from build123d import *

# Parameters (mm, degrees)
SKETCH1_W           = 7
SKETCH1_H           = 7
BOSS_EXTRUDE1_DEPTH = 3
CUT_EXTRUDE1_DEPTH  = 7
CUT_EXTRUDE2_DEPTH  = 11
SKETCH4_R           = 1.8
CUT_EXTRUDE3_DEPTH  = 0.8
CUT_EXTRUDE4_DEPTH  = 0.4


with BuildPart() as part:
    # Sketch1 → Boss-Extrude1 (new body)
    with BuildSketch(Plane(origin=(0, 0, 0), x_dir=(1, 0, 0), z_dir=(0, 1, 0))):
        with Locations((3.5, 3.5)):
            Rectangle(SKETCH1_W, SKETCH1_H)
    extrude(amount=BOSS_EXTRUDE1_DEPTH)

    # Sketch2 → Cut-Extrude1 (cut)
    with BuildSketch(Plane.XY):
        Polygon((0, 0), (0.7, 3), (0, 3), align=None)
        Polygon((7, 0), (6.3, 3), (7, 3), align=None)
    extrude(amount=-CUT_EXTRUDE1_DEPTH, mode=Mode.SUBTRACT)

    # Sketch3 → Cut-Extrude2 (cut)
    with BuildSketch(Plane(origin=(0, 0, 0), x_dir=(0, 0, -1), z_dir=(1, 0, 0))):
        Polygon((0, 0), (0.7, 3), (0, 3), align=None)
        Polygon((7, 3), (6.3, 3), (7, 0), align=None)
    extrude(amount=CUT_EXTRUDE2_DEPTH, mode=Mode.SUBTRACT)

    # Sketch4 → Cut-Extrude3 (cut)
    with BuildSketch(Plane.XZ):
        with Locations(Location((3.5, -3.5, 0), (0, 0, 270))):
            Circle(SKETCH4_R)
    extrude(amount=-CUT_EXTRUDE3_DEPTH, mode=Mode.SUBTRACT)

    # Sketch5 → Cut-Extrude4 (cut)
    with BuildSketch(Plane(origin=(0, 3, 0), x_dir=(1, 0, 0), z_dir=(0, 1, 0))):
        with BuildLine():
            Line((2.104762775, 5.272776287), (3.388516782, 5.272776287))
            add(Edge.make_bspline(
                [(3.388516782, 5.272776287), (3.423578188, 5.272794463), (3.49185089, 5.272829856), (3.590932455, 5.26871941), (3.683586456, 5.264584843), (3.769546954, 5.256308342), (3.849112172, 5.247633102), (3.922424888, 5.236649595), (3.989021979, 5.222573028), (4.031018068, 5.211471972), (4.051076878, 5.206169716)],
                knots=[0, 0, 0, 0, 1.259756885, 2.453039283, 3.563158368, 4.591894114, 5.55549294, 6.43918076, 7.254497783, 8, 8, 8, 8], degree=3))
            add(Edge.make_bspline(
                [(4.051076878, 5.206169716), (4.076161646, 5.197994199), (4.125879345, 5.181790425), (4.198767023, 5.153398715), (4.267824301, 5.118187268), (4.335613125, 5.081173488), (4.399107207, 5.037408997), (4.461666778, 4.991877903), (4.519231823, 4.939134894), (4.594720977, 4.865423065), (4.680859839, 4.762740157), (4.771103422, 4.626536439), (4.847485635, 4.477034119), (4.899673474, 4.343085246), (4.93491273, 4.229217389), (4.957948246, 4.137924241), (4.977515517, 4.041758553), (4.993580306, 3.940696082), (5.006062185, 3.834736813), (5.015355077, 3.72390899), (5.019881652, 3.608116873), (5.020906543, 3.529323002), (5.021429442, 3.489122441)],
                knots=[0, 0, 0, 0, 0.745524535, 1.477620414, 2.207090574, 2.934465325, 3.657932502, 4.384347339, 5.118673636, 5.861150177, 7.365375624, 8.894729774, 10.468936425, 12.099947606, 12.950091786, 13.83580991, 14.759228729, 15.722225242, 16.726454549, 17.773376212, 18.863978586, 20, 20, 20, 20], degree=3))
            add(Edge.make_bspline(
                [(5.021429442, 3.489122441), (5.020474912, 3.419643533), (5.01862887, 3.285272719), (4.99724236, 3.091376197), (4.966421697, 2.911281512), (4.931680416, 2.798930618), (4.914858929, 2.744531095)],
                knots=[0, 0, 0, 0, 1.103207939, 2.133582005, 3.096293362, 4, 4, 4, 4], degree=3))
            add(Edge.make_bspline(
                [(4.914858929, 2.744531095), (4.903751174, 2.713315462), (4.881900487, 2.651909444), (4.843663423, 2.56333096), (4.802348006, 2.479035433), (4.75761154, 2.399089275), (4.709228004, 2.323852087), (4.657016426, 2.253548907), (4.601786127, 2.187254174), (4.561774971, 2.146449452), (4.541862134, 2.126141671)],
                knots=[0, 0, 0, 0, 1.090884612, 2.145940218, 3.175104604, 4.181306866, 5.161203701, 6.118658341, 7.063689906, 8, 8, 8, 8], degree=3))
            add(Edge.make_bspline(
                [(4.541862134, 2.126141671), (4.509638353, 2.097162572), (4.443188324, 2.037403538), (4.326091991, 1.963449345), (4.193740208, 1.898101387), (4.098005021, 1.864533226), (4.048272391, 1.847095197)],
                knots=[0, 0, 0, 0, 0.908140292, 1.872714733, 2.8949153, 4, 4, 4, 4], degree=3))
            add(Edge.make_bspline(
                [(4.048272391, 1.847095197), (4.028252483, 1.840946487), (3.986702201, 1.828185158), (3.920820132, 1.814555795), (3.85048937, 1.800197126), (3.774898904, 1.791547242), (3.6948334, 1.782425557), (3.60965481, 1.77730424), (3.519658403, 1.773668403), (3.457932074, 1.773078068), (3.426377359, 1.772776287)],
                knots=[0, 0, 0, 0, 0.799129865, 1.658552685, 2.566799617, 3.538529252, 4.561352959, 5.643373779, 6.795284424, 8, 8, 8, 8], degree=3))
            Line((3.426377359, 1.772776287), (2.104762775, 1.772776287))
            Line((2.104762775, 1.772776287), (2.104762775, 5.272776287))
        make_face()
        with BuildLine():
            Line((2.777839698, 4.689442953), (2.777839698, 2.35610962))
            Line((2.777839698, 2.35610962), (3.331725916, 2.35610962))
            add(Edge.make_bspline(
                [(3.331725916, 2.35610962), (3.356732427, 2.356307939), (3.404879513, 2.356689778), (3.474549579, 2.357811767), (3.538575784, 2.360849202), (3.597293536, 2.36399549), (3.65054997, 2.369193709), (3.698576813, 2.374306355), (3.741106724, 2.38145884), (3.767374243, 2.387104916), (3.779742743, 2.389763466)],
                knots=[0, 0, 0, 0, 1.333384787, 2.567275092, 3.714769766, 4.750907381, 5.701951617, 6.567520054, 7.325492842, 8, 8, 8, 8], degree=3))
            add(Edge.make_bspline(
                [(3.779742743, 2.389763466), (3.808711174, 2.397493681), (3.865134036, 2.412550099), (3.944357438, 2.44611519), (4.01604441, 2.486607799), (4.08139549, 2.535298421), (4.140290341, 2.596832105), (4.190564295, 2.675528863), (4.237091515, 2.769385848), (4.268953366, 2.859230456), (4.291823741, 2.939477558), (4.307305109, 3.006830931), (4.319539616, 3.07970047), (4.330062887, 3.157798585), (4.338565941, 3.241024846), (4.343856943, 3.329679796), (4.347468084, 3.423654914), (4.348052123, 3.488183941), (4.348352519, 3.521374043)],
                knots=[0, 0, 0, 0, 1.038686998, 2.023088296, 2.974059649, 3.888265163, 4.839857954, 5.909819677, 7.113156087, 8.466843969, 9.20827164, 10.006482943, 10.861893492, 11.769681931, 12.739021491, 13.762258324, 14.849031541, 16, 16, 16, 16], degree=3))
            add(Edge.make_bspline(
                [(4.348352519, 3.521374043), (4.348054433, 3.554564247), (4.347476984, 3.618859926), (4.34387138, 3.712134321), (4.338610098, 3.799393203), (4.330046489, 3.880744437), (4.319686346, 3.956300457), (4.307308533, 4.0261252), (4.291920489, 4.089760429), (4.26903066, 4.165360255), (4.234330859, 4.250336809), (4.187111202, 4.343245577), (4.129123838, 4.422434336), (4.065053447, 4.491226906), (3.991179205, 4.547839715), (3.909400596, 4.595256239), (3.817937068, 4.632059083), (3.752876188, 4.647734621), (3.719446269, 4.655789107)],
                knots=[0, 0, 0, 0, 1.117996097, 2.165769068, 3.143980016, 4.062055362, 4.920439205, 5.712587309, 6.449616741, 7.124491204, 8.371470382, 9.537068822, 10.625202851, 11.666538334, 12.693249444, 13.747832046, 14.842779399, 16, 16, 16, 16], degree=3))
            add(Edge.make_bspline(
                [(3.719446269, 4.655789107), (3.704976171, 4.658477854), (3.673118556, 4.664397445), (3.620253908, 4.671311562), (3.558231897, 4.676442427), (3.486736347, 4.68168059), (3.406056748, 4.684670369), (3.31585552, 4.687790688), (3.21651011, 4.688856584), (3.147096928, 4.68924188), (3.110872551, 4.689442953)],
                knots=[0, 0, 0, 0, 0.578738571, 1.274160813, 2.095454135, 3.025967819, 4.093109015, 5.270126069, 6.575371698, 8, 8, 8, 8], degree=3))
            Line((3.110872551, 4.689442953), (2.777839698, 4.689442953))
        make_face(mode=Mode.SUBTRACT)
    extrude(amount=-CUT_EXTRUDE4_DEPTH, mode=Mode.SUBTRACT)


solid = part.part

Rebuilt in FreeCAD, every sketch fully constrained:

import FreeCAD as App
import Part
import Sketcher

doc = App.newDocument("Part")
body = doc.addObject("PartDesign::Body", "Body")

# Sketch on XZ plane
sketch1 = doc.addObject("Sketcher::SketchObject", "Sketch")
body.addObject(sketch1)
sketch1.AttachmentSupport = (doc.XZ_Plane, [""])
sketch1.MapMode = "FlatFace"
sketch1.addGeometry([
    Part.LineSegment(App.Vector(0, -7, 0), App.Vector(0, 0, 0)),
    Part.LineSegment(App.Vector(0, 0, 0), App.Vector(7, 0, 0)),
    Part.LineSegment(App.Vector(7, 0, 0), App.Vector(7, -7, 0)),
    Part.LineSegment(App.Vector(7, -7, 0), App.Vector(0, -7, 0)),
], False)
sketch1.addConstraint([
    Sketcher.Constraint("Coincident", 0, 2, 1, 1),
    Sketcher.Constraint("Coincident", 1, 2, 2, 1),
    Sketcher.Constraint("Coincident", 2, 2, 3, 1),
    Sketcher.Constraint("Coincident", 3, 2, 0, 1),
    Sketcher.Constraint("Vertical", 0),
    Sketcher.Constraint("Horizontal", 1),
    Sketcher.Constraint("Vertical", 2),
    Sketcher.Constraint("Horizontal", 3),
    Sketcher.Constraint("Coincident", 0, 2, -1, 1),
    Sketcher.Constraint("Equal", 3, 0),
    Sketcher.Constraint("DistanceX", 1, 1, 1, 2, 7.0),
])
pad1 = doc.addObject("PartDesign::Pad", "Pad")
body.addObject(pad1)
pad1.Profile = sketch1
pad1.Length = 3
pad1.Reversed = True

# Sketch on XY plane
sketch2 = doc.addObject("Sketcher::SketchObject", "Sketch001")
body.addObject(sketch2)
sketch2.AttachmentSupport = (doc.XY_Plane, [""])
sketch2.MapMode = "FlatFace"
sketch2.addGeometry([
    Part.LineSegment(App.Vector(0, 0, 0), App.Vector(0.7, 3, 0)),  # 0
    Part.LineSegment(App.Vector(0.7, 3, 0), App.Vector(0, 3, 0)),  # 1
    Part.LineSegment(App.Vector(0, 3, 0), App.Vector(0, 0, 0)),  # 2
    Part.LineSegment(App.Vector(6.3, 3, 0), App.Vector(7, 0, 0)),  # 3
    Part.LineSegment(App.Vector(7, 0, 0), App.Vector(7, 3, 0)),  # 4
    Part.LineSegment(App.Vector(7, 3, 0), App.Vector(6.3, 3, 0)),  # 5
], False)
sketch2.addConstraint([
    Sketcher.Constraint("Coincident", 0, 2, 1, 1),
    Sketcher.Constraint("Coincident", 1, 2, 2, 1),
    Sketcher.Constraint("Coincident", 2, 2, 0, 1),
    Sketcher.Constraint("Coincident", 3, 2, 4, 1),
    Sketcher.Constraint("Coincident", 4, 2, 5, 1),
    Sketcher.Constraint("Coincident", 5, 2, 3, 1),
    Sketcher.Constraint("Horizontal", 1),
    Sketcher.Constraint("Vertical", 2),
    Sketcher.Constraint("Vertical", 4),
    Sketcher.Constraint("Horizontal", 5),
    Sketcher.Constraint("Coincident", 2, 2, -1, 1),
    Sketcher.Constraint("PointOnObject", 3, 2, -1),
    Sketcher.Constraint("Horizontal", 1, 2, 4, 2),
    Sketcher.Constraint("Equal", 1, 5),
    Sketcher.Constraint("DistanceY", 2, 2, 2, 1, 3.0),
    Sketcher.Constraint("DistanceX", 1, 2, 1, 1, 0.7),
    Sketcher.Constraint("DistanceX", -1, 1, 3, 2, 7.0),
])
pocket1 = doc.addObject("PartDesign::Pocket", "Pocket")
body.addObject(pocket1)
pocket1.Profile = sketch2
pocket1.Length = 7

# Sketch on YZ plane
sketch3 = doc.addObject("Sketcher::SketchObject", "Sketch002")
body.addObject(sketch3)
sketch3.AttachmentSupport = (doc.YZ_Plane, [""])
sketch3.MapMode = "FlatFace"
sketch3.addGeometry([
    Part.LineSegment(App.Vector(0, 0, 0), App.Vector(3, -0.7, 0)),  # 0
    Part.LineSegment(App.Vector(3, -0.7, 0), App.Vector(3, 0, 0)),  # 1
    Part.LineSegment(App.Vector(3, 0, 0), App.Vector(0, 0, 0)),  # 2
    Part.LineSegment(App.Vector(3, -7, 0), App.Vector(3, -6.3, 0)),  # 3
    Part.LineSegment(App.Vector(3, -6.3, 0), App.Vector(0, -7, 0)),  # 4
    Part.LineSegment(App.Vector(0, -7, 0), App.Vector(3, -7, 0)),  # 5
], False)
sketch3.addConstraint([
    Sketcher.Constraint("Coincident", 0, 2, 1, 1),
    Sketcher.Constraint("Coincident", 1, 2, 2, 1),
    Sketcher.Constraint("Coincident", 2, 2, 0, 1),
    Sketcher.Constraint("Coincident", 3, 2, 4, 1),
    Sketcher.Constraint("Coincident", 4, 2, 5, 1),
    Sketcher.Constraint("Coincident", 5, 2, 3, 1),
    Sketcher.Constraint("Vertical", 1),
    Sketcher.Constraint("Horizontal", 2),
    Sketcher.Constraint("Vertical", 3),
    Sketcher.Constraint("Horizontal", 5),
    Sketcher.Constraint("Coincident", 2, 2, -1, 1),
    Sketcher.Constraint("PointOnObject", 4, 2, -2),
    Sketcher.Constraint("Vertical", 1, 2, 3, 2),
    Sketcher.Constraint("Equal", 1, 3),
    Sketcher.Constraint("DistanceX", 2, 2, 2, 1, 3.0),
    Sketcher.Constraint("DistanceY", 1, 1, 1, 2, 0.7),
    Sketcher.Constraint("DistanceY", 4, 2, -1, 1, 7.0),
])
pocket2 = doc.addObject("PartDesign::Pocket", "Pocket001")
body.addObject(pocket2)
pocket2.Profile = sketch3
pocket2.Length = 11
pocket2.Reversed = True

# Sketch on XZ plane
sketch4 = doc.addObject("Sketcher::SketchObject", "Sketch003")
body.addObject(sketch4)
sketch4.AttachmentSupport = (doc.XZ_Plane, [""])
sketch4.MapMode = "FlatFace"
sketch4.addGeometry(Part.Circle(App.Vector(3.5, -3.5, 0), App.Vector(0, 0, 1), 1.8), False)
sketch4.addConstraint([
    Sketcher.Constraint("Diameter", 0, 3.6),
    Sketcher.Constraint("DistanceX", -1, 1, 0, 3, 3.5),
    Sketcher.Constraint("DistanceY", 0, 3, -1, 1, 3.5),
])
pocket3 = doc.addObject("PartDesign::Pocket", "Pocket002")
body.addObject(pocket3)
pocket3.Profile = sketch4
pocket3.Length = 0.8

# Sketch on XZ plane
sketch5 = doc.addObject("Sketcher::SketchObject", "Sketch004")
body.addObject(sketch5)
sketch5.AttachmentSupport = (doc.XZ_Plane, [""])
sketch5.MapMode = "FlatFace"
sketch5.AttachmentOffset = App.Placement(App.Vector(0, 0, -3), App.Rotation())
sketch5.addGeometry([
    Part.LineSegment(App.Vector(3.388517, -5.272776, 0), App.Vector(2.104763, -5.272776, 0)),  # 0
    Part.LineSegment(App.Vector(2.104763, -5.272776, 0), App.Vector(2.104763, -1.772776, 0)),  # 1
    Part.LineSegment(App.Vector(2.104763, -1.772776, 0), App.Vector(3.426377, -1.772776, 0)),  # 2
    Part.BSplineCurve([App.Vector(4.048272, -1.847095, 0), App.Vector(4.028252, -1.840946, 0), App.Vector(3.986702, -1.828185, 0), App.Vector(3.92082, -1.814556, 0), App.Vector(3.850489, -1.800197, 0), App.Vector(3.774899, -1.791547, 0), App.Vector(3.694833, -1.782426, 0), App.Vector(3.609655, -1.777304, 0), App.Vector(3.519658, -1.773668, 0), App.Vector(3.457932, -1.773078, 0), App.Vector(3.426377, -1.772776, 0)], [4, 1, 1, 1, 1, 1, 1, 1, 4], [0, 0.799129865, 1.658552685, 2.566799617, 3.538529252, 4.561352959, 5.643373779, 6.795284424, 8], False, 3, [1, 1, 1, 1, 1, 1, 1, 1, 1, 1, 1], False),  # 3
    Part.BSplineCurve([App.Vector(4.541862, -2.126142, 0), App.Vector(4.509638, -2.097163, 0), App.Vector(4.443188, -2.037404, 0), App.Vector(4.326092, -1.963449, 0), App.Vector(4.19374, -1.898101, 0), App.Vector(4.098005, -1.864533, 0), App.Vector(4.048272, -1.847095, 0)], [4, 1, 1, 1, 4], [0, 0.908140292, 1.872714733, 2.8949153, 4], False, 3, [1, 1, 1, 1, 1, 1, 1], False),  # 4
    Part.BSplineCurve([App.Vector(4.914859, -2.744531, 0), App.Vector(4.903751, -2.713315, 0), App.Vector(4.8819, -2.651909, 0), App.Vector(4.843663, -2.563331, 0), App.Vector(4.802348, -2.479035, 0), App.Vector(4.757612, -2.399089, 0), App.Vector(4.709228, -2.323852, 0), App.Vector(4.657016, -2.253549, 0), App.Vector(4.601786, -2.187254, 0), App.Vector(4.561775, -2.146449, 0), App.Vector(4.541862, -2.126142, 0)], [4, 1, 1, 1, 1, 1, 1, 1, 4], [0, 1.090884612, 2.145940218, 3.175104604, 4.181306866, 5.161203701, 6.118658341, 7.063689906, 8], False, 3, [1, 1, 1, 1, 1, 1, 1, 1, 1, 1, 1], False),  # 5
    Part.BSplineCurve([App.Vector(5.021429, -3.489122, 0), App.Vector(5.020475, -3.419644, 0), App.Vector(5.018629, -3.285273, 0), App.Vector(4.997242, -3.091376, 0), App.Vector(4.966422, -2.911282, 0), App.Vector(4.93168, -2.798931, 0), App.Vector(4.914859, -2.744531, 0)], [4, 1, 1, 1, 4], [0, 1.103207939, 2.133582005, 3.096293362, 4], False, 3, [1, 1, 1, 1, 1, 1, 1], False),  # 6
    Part.BSplineCurve([App.Vector(4.051077, -5.20617, 0), App.Vector(4.076162, -5.197994, 0), App.Vector(4.125879, -5.18179, 0), App.Vector(4.198767, -5.153399, 0), App.Vector(4.267824, -5.118187, 0), App.Vector(4.335613, -5.081173, 0), App.Vector(4.399107, -5.037409, 0), App.Vector(4.461667, -4.991878, 0), App.Vector(4.519232, -4.939135, 0), App.Vector(4.594721, -4.865423, 0), App.Vector(4.68086, -4.76274, 0), App.Vector(4.771103, -4.626536, 0), App.Vector(4.847486, -4.477034, 0), App.Vector(4.899673, -4.343085, 0), App.Vector(4.934913, -4.229217, 0), App.Vector(4.957948, -4.137924, 0), App.Vector(4.977516, -4.041759, 0), App.Vector(4.99358, -3.940696, 0), App.Vector(5.006062, -3.834737, 0), App.Vector(5.015355, -3.723909, 0), App.Vector(5.019882, -3.608117, 0), App.Vector(5.020907, -3.529323, 0), App.Vector(5.021429, -3.489122, 0)], [4, 1, 1, 1, 1, 1, 1, 1, 1, 1, 1, 1, 1, 1, 1, 1, 1, 1, 1, 1, 4], [0, 0.745524535, 1.477620414, 2.207090574, 2.934465325, 3.657932502, 4.384347339, 5.118673636, 5.861150177, 7.365375624, 8.894729774, 10.468936425, 12.099947606, 12.950091786, 13.83580991, 14.759228729, 15.722225242, 16.726454549, 17.773376212, 18.863978586, 20], False, 3, [1, 1, 1, 1, 1, 1, 1, 1, 1, 1, 1, 1, 1, 1, 1, 1, 1, 1, 1, 1, 1, 1, 1], False),  # 7
    Part.BSplineCurve([App.Vector(3.388517, -5.272776, 0), App.Vector(3.423578, -5.272794, 0), App.Vector(3.491851, -5.27283, 0), App.Vector(3.590932, -5.268719, 0), App.Vector(3.683586, -5.264585, 0), App.Vector(3.769547, -5.256308, 0), App.Vector(3.849112, -5.247633, 0), App.Vector(3.922425, -5.23665, 0), App.Vector(3.989022, -5.222573, 0), App.Vector(4.031018, -5.211472, 0), App.Vector(4.051077, -5.20617, 0)], [4, 1, 1, 1, 1, 1, 1, 1, 4], [0, 1.259756885, 2.453039283, 3.563158368, 4.591894114, 5.55549294, 6.43918076, 7.254497783, 8], False, 3, [1, 1, 1, 1, 1, 1, 1, 1, 1, 1, 1], False),  # 8
    Part.LineSegment(App.Vector(2.77784, -4.689443, 0), App.Vector(3.110873, -4.689443, 0)),  # 9
    Part.BSplineCurve([App.Vector(3.719446, -4.655789, 0), App.Vector(3.704976, -4.658478, 0), App.Vector(3.673119, -4.664397, 0), App.Vector(3.620254, -4.671312, 0), App.Vector(3.558232, -4.676442, 0), App.Vector(3.486736, -4.681681, 0), App.Vector(3.406057, -4.68467, 0), App.Vector(3.315856, -4.687791, 0), App.Vector(3.21651, -4.688857, 0), App.Vector(3.147097, -4.689242, 0), App.Vector(3.110873, -4.689443, 0)], [4, 1, 1, 1, 1, 1, 1, 1, 4], [0, 0.578738571, 1.274160813, 2.095454135, 3.025967819, 4.093109015, 5.270126069, 6.575371698, 8], False, 3, [1, 1, 1, 1, 1, 1, 1, 1, 1, 1, 1], False),  # 10
    Part.BSplineCurve([App.Vector(4.348353, -3.521374, 0), App.Vector(4.348054, -3.554564, 0), App.Vector(4.347477, -3.61886, 0), App.Vector(4.343871, -3.712134, 0), App.Vector(4.33861, -3.799393, 0), App.Vector(4.330046, -3.880744, 0), App.Vector(4.319686, -3.9563, 0), App.Vector(4.307309, -4.026125, 0), App.Vector(4.29192, -4.08976, 0), App.Vector(4.269031, -4.16536, 0), App.Vector(4.234331, -4.250337, 0), App.Vector(4.187111, -4.343246, 0), App.Vector(4.129124, -4.422434, 0), App.Vector(4.065053, -4.491227, 0), App.Vector(3.991179, -4.54784, 0), App.Vector(3.909401, -4.595256, 0), App.Vector(3.817937, -4.632059, 0), App.Vector(3.752876, -4.647735, 0), App.Vector(3.719446, -4.655789, 0)], [4, 1, 1, 1, 1, 1, 1, 1, 1, 1, 1, 1, 1, 1, 1, 1, 4], [0, 1.117996097, 2.165769068, 3.143980016, 4.062055362, 4.920439205, 5.712587309, 6.449616741, 7.124491204, 8.371470382, 9.537068822, 10.625202851, 11.666538334, 12.693249444, 13.747832046, 14.842779399, 16], False, 3, [1, 1, 1, 1, 1, 1, 1, 1, 1, 1, 1, 1, 1, 1, 1, 1, 1, 1, 1], False),  # 11
    Part.BSplineCurve([App.Vector(3.779743, -2.389763, 0), App.Vector(3.808711, -2.397494, 0), App.Vector(3.865134, -2.41255, 0), App.Vector(3.944357, -2.446115, 0), App.Vector(4.016044, -2.486608, 0), App.Vector(4.081395, -2.535298, 0), App.Vector(4.14029, -2.596832, 0), App.Vector(4.190564, -2.675529, 0), App.Vector(4.237092, -2.769386, 0), App.Vector(4.268953, -2.85923, 0), App.Vector(4.291824, -2.939478, 0), App.Vector(4.307305, -3.006831, 0), App.Vector(4.31954, -3.0797, 0), App.Vector(4.330063, -3.157799, 0), App.Vector(4.338566, -3.241025, 0), App.Vector(4.343857, -3.32968, 0), App.Vector(4.347468, -3.423655, 0), App.Vector(4.348052, -3.488184, 0), App.Vector(4.348353, -3.521374, 0)], [4, 1, 1, 1, 1, 1, 1, 1, 1, 1, 1, 1, 1, 1, 1, 1, 4], [0, 1.038686998, 2.023088296, 2.974059649, 3.888265163, 4.839857954, 5.909819677, 7.113156087, 8.466843969, 9.20827164, 10.006482943, 10.861893492, 11.769681931, 12.739021491, 13.762258324, 14.849031541, 16], False, 3, [1, 1, 1, 1, 1, 1, 1, 1, 1, 1, 1, 1, 1, 1, 1, 1, 1, 1, 1], False),  # 12
    Part.BSplineCurve([App.Vector(3.331726, -2.35611, 0), App.Vector(3.356732, -2.356308, 0), App.Vector(3.40488, -2.35669, 0), App.Vector(3.47455, -2.357812, 0), App.Vector(3.538576, -2.360849, 0), App.Vector(3.597294, -2.363995, 0), App.Vector(3.65055, -2.369194, 0), App.Vector(3.698577, -2.374306, 0), App.Vector(3.741107, -2.381459, 0), App.Vector(3.767374, -2.387105, 0), App.Vector(3.779743, -2.389763, 0)], [4, 1, 1, 1, 1, 1, 1, 1, 4], [0, 1.333384787, 2.567275092, 3.714769766, 4.750907381, 5.701951617, 6.567520054, 7.325492842, 8], False, 3, [1, 1, 1, 1, 1, 1, 1, 1, 1, 1, 1], False),  # 13
    Part.LineSegment(App.Vector(3.331726, -2.35611, 0), App.Vector(2.77784, -2.35611, 0)),  # 14
    Part.LineSegment(App.Vector(2.77784, -2.35611, 0), App.Vector(2.77784, -4.689443, 0)),  # 15
], False)
sketch5.addConstraint([
    Sketcher.Constraint("Block", 3),
    Sketcher.Constraint("Block", 4),
    Sketcher.Constraint("Block", 5),
    Sketcher.Constraint("Block", 6),
    Sketcher.Constraint("Block", 7),
    Sketcher.Constraint("Block", 8),
    Sketcher.Constraint("Block", 10),
    Sketcher.Constraint("Block", 11),
    Sketcher.Constraint("Block", 12),
    Sketcher.Constraint("Block", 13),
    Sketcher.Constraint("Coincident", 0, 2, 1, 1),
    Sketcher.Constraint("Coincident", 1, 2, 2, 1),
    Sketcher.Constraint("Coincident", 2, 2, 3, 2),
    Sketcher.Constraint("Coincident", 8, 1, 0, 1),
    Sketcher.Constraint("Coincident", 9, 2, 10, 2),
    Sketcher.Constraint("Coincident", 13, 1, 14, 1),
    Sketcher.Constraint("Coincident", 14, 2, 15, 1),
    Sketcher.Constraint("Coincident", 15, 2, 9, 1),
    Sketcher.Constraint("Horizontal", 0),
    Sketcher.Constraint("Vertical", 1),
    Sketcher.Constraint("Horizontal", 2),
    Sketcher.Constraint("Horizontal", 9),
    Sketcher.Constraint("Horizontal", 14),
    Sketcher.Constraint("Vertical", 15),
    Sketcher.Constraint("DistanceX", 0, 2, 0, 1, 1.283754),
    Sketcher.Constraint("DistanceX", 9, 1, 9, 2, 0.333033),
])
pocket4 = doc.addObject("PartDesign::Pocket", "Pocket003")
body.addObject(pocket4)
pocket4.Profile = sketch5
pocket4.Length = 0.4
pocket4.Reversed = True

doc.recompute()
